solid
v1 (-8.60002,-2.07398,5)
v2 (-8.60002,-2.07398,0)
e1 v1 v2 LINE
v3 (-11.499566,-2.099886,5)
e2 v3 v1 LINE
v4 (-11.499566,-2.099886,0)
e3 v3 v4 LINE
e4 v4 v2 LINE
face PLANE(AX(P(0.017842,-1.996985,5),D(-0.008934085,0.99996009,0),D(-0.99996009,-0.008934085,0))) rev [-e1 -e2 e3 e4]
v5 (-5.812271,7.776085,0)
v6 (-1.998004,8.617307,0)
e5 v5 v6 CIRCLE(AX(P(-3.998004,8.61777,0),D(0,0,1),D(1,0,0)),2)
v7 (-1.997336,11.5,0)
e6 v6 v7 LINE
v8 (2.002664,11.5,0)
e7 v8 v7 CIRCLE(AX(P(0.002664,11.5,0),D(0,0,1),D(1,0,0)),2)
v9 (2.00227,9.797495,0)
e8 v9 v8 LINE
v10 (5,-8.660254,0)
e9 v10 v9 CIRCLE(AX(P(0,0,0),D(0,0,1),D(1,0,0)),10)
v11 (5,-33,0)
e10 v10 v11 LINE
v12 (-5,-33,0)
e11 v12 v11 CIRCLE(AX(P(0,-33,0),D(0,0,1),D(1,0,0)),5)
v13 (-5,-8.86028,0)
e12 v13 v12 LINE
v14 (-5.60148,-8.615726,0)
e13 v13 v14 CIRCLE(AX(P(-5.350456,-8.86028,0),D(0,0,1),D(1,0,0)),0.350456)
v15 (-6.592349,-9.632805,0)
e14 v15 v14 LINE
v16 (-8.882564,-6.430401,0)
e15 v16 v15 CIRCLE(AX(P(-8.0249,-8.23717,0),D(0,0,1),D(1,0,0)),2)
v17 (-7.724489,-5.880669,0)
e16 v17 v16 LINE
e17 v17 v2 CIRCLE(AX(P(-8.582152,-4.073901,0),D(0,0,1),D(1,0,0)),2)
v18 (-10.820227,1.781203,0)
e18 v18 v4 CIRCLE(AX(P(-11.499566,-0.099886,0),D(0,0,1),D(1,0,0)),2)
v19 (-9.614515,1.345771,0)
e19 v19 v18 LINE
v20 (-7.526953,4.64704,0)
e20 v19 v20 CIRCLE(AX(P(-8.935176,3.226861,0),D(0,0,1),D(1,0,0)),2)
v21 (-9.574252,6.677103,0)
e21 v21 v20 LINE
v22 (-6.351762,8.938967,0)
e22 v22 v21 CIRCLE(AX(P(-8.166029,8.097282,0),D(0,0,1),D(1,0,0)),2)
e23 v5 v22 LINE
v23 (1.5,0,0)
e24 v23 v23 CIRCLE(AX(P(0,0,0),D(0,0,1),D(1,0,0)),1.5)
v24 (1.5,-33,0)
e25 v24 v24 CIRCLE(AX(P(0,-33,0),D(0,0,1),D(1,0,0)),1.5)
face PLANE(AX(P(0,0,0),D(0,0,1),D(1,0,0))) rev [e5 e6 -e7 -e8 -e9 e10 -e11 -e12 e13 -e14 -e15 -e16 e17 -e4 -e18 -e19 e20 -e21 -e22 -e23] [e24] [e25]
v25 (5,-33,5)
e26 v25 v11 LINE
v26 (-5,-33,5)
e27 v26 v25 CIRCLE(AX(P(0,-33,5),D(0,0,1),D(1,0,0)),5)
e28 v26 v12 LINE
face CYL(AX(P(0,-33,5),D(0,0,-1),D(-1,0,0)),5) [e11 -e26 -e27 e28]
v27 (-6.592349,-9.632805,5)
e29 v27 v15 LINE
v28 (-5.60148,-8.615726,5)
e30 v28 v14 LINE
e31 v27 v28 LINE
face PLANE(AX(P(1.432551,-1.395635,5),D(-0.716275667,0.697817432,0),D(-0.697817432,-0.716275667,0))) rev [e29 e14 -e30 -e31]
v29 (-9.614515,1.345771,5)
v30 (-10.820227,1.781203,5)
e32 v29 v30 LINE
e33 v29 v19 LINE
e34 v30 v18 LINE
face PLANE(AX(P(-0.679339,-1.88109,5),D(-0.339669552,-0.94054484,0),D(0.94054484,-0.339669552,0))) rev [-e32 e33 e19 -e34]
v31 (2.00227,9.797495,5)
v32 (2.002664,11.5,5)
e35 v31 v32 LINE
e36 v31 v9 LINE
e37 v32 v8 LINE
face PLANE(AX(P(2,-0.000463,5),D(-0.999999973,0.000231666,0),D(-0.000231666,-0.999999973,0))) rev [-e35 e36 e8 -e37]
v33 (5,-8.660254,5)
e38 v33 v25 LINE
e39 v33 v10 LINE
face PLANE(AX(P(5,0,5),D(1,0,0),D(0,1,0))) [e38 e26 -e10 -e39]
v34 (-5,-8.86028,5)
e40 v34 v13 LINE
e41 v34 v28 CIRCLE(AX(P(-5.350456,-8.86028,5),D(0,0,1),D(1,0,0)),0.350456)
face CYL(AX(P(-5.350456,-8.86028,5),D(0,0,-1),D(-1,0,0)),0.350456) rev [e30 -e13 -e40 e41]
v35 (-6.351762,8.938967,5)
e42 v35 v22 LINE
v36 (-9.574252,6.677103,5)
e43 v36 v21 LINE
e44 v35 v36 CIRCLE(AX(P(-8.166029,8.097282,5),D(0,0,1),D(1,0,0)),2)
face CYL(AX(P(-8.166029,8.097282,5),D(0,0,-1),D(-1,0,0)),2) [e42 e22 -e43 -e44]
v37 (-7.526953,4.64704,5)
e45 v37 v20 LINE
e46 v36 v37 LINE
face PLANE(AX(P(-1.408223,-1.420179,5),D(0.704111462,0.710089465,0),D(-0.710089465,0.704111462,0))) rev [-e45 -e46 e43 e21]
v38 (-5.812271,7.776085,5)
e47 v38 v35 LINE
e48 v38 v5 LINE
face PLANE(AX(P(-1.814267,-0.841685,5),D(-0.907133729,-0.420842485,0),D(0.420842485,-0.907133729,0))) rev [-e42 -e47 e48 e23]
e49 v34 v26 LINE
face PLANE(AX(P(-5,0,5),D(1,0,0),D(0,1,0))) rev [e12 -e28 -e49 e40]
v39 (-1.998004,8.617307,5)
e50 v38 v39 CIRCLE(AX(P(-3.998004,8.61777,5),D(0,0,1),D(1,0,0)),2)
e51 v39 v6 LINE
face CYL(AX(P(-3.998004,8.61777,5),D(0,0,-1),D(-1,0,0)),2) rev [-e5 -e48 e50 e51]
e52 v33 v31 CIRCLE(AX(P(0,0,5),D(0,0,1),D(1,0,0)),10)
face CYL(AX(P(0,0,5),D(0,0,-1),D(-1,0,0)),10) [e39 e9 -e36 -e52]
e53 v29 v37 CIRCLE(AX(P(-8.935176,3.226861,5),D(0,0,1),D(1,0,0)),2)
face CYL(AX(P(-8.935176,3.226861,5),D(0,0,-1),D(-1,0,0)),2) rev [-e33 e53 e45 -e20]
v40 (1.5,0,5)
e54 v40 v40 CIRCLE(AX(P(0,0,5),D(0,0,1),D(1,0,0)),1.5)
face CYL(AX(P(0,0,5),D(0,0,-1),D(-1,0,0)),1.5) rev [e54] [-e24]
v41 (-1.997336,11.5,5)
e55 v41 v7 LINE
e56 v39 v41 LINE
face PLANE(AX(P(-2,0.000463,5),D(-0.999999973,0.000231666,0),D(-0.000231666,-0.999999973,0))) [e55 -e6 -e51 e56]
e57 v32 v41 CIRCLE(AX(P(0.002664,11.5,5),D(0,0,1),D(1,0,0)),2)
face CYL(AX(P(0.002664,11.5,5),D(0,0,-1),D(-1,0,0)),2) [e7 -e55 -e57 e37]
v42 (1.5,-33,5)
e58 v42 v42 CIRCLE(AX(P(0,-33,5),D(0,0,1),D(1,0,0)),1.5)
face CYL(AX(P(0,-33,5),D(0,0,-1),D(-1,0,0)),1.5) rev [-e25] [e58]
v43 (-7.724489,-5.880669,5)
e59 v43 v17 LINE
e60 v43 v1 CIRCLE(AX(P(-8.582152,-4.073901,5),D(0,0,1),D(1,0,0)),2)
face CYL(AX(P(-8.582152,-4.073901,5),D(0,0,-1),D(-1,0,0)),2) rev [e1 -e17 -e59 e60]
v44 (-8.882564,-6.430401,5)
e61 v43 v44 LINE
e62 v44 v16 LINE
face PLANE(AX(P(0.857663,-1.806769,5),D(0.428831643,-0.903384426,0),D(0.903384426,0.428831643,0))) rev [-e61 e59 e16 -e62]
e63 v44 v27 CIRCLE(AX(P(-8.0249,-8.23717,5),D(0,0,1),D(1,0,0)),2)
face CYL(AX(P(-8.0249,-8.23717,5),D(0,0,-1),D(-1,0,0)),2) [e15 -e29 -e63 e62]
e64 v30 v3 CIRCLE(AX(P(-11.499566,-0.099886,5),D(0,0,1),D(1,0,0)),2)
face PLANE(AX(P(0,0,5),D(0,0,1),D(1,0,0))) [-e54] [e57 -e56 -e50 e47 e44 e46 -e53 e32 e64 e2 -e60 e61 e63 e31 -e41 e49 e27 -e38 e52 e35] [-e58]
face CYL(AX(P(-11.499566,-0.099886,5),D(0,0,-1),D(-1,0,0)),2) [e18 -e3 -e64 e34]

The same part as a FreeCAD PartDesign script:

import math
import FreeCAD as App
import Part
import Sketcher

doc = App.newDocument("Part")
body = doc.addObject("PartDesign::Body", "Body")

# Sketch on XY plane
sketch1 = doc.addObject("Sketcher::SketchObject", "Sketch")
body.addObject(sketch1)
sketch1.AttachmentSupport = (doc.XY_Plane, [""])
sketch1.MapMode = "FlatFace"
sketch1.addGeometry([
    Part.LineSegment(App.Vector(5, -33, 0), App.Vector(5, -8.660254, 0)),  # 0
    Part.ArcOfCircle(Part.Circle(App.Vector(0, 0, 0), App.Vector(0, 0, 1), 10), math.radians(-60), math.radians(78.449768)),  # 1
    Part.LineSegment(App.Vector(2.00227, 9.797495, 0), App.Vector(2.002664, 11.499536, 0)),  # 2
    Part.LineSegment(App.Vector(2.002664, 11.499536, 0), App.Vector(2.002664, 11.5, 0)),  # 3
    Part.ArcOfCircle(Part.Circle(App.Vector(0.002664, 11.5, 0), App.Vector(0, 0, 1), 2), math.radians(0), math.radians(180)),  # 4
    Part.LineSegment(App.Vector(-1.997336, 11.5, 0), App.Vector(-1.998004, 8.617307, 0)),  # 5
    Part.ArcOfCircle(Part.Circle(App.Vector(-3.998004, 8.61777, 0), App.Vector(0, 0, 1), 2), math.radians(-155.112199), math.radians(-0.013273)),  # 6
    Part.LineSegment(App.Vector(-5.812271, 7.776085, 0), App.Vector(-6.351762, 8.938967, 0)),  # 7
    Part.ArcOfCircle(Part.Circle(App.Vector(-8.166029, 8.097282, 0), App.Vector(0, 0, 1), 2), math.radians(24.887801), math.radians(225.242195)),  # 8
    Part.LineSegment(App.Vector(-9.574252, 6.677103, 0), App.Vector(-7.526953, 4.64704, 0)),  # 9
    Part.ArcOfCircle(Part.Circle(App.Vector(-8.935176, 3.226861, 0), App.Vector(0, 0, 1), 2), math.radians(-109.856743), math.radians(45.242195)),  # 10
    Part.LineSegment(App.Vector(-9.614515, 1.345771, 0), App.Vector(-10.820227, 1.781203, 0)),  # 11
    Part.ArcOfCircle(Part.Circle(App.Vector(-11.499566, -0.099886, 0), App.Vector(0, 0, 1), 2), math.radians(70.143257), math.radians(270)),  # 12
    Part.LineSegment(App.Vector(-11.499566, -2.099886, 0), App.Vector(-11.463831, -2.099567, 0)),  # 13
    Part.LineSegment(App.Vector(-11.463831, -2.099567, 0), App.Vector(-8.60002, -2.07398, 0)),  # 14
    Part.ArcOfCircle(Part.Circle(App.Vector(-8.582152, -4.073901, 0), App.Vector(0, 0, 1), 2), math.radians(-64.606564), math.radians(90.511892)),  # 15
    Part.LineSegment(App.Vector(-7.724489, -5.880669, 0), App.Vector(-7.99366, -6.008444, 0)),  # 16
    Part.LineSegment(App.Vector(-7.99366, -6.008444, 0), App.Vector(-8.882564, -6.430401, 0)),  # 17
    Part.ArcOfCircle(Part.Circle(App.Vector(-8.0249, -8.23717, 0), App.Vector(0, 0, 1), 2), math.radians(115.393436), math.radians(315.747842)),  # 18
    Part.LineSegment(App.Vector(-6.592349, -9.632805, 0), App.Vector(-5.60148, -8.615726, 0)),  # 19
    Part.ArcOfCircle(Part.Circle(App.Vector(-5.350456, -8.86028, 0), App.Vector(0, 0, 1), 0.350456), math.radians(0), math.radians(135.747842)),  # 20
    Part.LineSegment(App.Vector(-5, -8.86028, 0), App.Vector(-5, -33, 0)),  # 21
    Part.ArcOfCircle(Part.Circle(App.Vector(0, -33, 0), App.Vector(0, 0, 1), 5), math.radians(180), math.radians(360)),  # 22
    Part.Circle(App.Vector(0, -33, 0), App.Vector(0, 0, 1), 1.5),  # 23
    Part.Circle(App.Vector(0, 0, 0), App.Vector(0, 0, 1), 1.5),  # 24
], False)
sketch1.addConstraint([
    Sketcher.Constraint("Coincident", 0, 2, 1, 1),
    Sketcher.Constraint("Coincident", 1, 2, 2, 1),
    Sketcher.Constraint("Coincident", 2, 2, 3, 1),
    Sketcher.Constraint("Coincident", 3, 2, 4, 1),
    Sketcher.Constraint("Coincident", 4, 2, 5, 1),
    Sketcher.Constraint("Coincident", 5, 2, 6, 2),
    Sketcher.Constraint("Coincident", 6, 1, 7, 1),
    Sketcher.Constraint("Coincident", 7, 2, 8, 1),
    Sketcher.Constraint("Coincident", 8, 2, 9, 1),
    Sketcher.Constraint("Coincident", 9, 2, 10, 2),
    Sketcher.Constraint("Coincident", 10, 1, 11, 1),
    Sketcher.Constraint("Coincident", 11, 2, 12, 1),
    Sketcher.Constraint("Coincident", 12, 2, 13, 1),
    Sketcher.Constraint("Coincident", 13, 2, 14, 1),
    Sketcher.Constraint("Coincident", 14, 2, 15, 2),
    Sketcher.Constraint("Coincident", 15, 1, 16, 1),
    Sketcher.Constraint("Coincident", 16, 2, 17, 1),
    Sketcher.Constraint("Coincident", 17, 2, 18, 1),
    Sketcher.Constraint("Coincident", 18, 2, 19, 1),
    Sketcher.Constraint("Coincident", 19, 2, 20, 2),
    Sketcher.Constraint("Coincident", 20, 1, 21, 1),
    Sketcher.Constraint("Coincident", 21, 2, 22, 1),
    Sketcher.Constraint("Coincident", 22, 2, 0, 1),
    Sketcher.Constraint("Vertical", 0),
    Sketcher.Constraint("Vertical", 3),
    Sketcher.Constraint("Vertical", 21),
    Sketcher.Constraint("Coincident", 1, 3, -1, 1),
    Sketcher.Constraint("Coincident", 24, 3, -1, 1),
    Sketcher.Constraint("Coincident", 23, 3, 22, 3),
    Sketcher.Constraint("PointOnObject", 22, 3, -2),
    Sketcher.Constraint("Diameter", 23, 3.0),
    Sketcher.Constraint("Diameter", 24, 3.0),
    Sketcher.Constraint("Radius", 1, 10.0),
    Sketcher.Constraint("Radius", 4, 2.0),
    Sketcher.Constraint("Radius", 6, 2.0),
    Sketcher.Constraint("Radius", 8, 2.0),
    Sketcher.Constraint("Radius", 10, 2.0),
    Sketcher.Constraint("Radius", 12, 2.0),
    Sketcher.Constraint("Radius", 15, 2.0),
    Sketcher.Constraint("Radius", 18, 2.0),
    Sketcher.Constraint("Radius", 22, 5.0),
    Sketcher.Constraint("DistanceY", 22, 3, -1, 1, 33.0),
    Sketcher.Constraint("DistanceY", 21, 2, -1, 1, 33.0),
    Sketcher.Constraint("DistanceY", 22, 2, -1, 1, 33.0),
    Sketcher.Constraint("DistanceY", -1, 1, 4, 3, 11.5),
    Sketcher.Constraint("DistanceY", -1, 1, 3, 2, 11.5),
    Sketcher.Constraint("DistanceY", -1, 1, 4, 2, 11.5),
    Sketcher.Constraint("Radius", 20, 0.350456),
    Sketcher.Constraint("DistanceY", 21, 2, 21, 1, 24.13972),
    Sketcher.Constraint("DistanceY", 15, 3, -1, 1, 4.073901),
    Sketcher.Constraint("DistanceX", 18, 3, -1, 1, 8.0249),
    Sketcher.Constraint("DistanceY", 17, 2, -1, 1, 6.430401),
    Sketcher.Constraint("DistanceX", 8, 3, 1, 2, 10.168299),
    Sketcher.Constraint("DistanceX", 8, 2, 9, 2, 2.047299),
    Sketcher.Constraint("DistanceY", 11, 2, 8, 2, 4.895899),
    Sketcher.Constraint("DistanceY", 18, 3, 15, 1, 2.356501),
    Sketcher.Constraint("Distance", 2, 1.702041),
    Sketcher.Constraint("Distance", 7, 1.28193),
    Sketcher.Constraint("Distance", 11, 1.281929),
    Sketcher.Constraint("Distance", 16, 0.297959),
    Sketcher.Constraint("Distance", 17, 0.98397),
    Sketcher.Constraint("DistanceY", 3, 1, 3, 2, 0.000463),
    Sketcher.Constraint("DistanceY", -1, 1, 6, 3, 8.61777),
    Sketcher.Constraint("DistanceY", -1, 1, 8, 3, 8.097282),
    Sketcher.Constraint("DistanceY", -1, 1, 10, 3, 3.226861),
    Sketcher.Constraint("DistanceY", 18, 3, -1, 1, 8.23717),
    Sketcher.Constraint("DistanceY", 20, 3, -1, 1, 8.86028),
    Sketcher.Constraint("DistanceX", 6, 1, -1, 1, 5.812271),
    Sketcher.Constraint("DistanceX", 7, 2, -1, 1, 6.351762),
    Sketcher.Constraint("DistanceX", 8, 2, -1, 1, 9.574252),
    Sketcher.Constraint("DistanceY", -1, 1, 9, 2, 4.64704),
    Sketcher.Constraint("DistanceY", -1, 1, 10, 1, 1.345771),
    Sketcher.Constraint("DistanceX", 13, 2, -1, 1, 11.463831),
    Sketcher.Constraint("DistanceX", 14, 2, -1, 1, 8.60002),
    Sketcher.Constraint("DistanceX", 16, 2, -1, 1, 7.99366),
    Sketcher.Constraint("DistanceX", 18, 2, -1, 1, 6.592349),
    Sketcher.Constraint("DistanceX", 19, 2, -1, 1, 5.60148),
    Sketcher.Constraint("DistanceX", 10, 3, 4, 3, 8.93784),
    Sketcher.Constraint("DistanceX", 12, 3, 10, 3, 2.56439),
    Sketcher.Constraint("DistanceY", 5, 2, 1, 2, 1.180188),
    Sketcher.Constraint("DistanceX", 12, 2, 10, 1, 1.885051),
    Sketcher.Constraint("DistanceY", 12, 2, 13, 2, 0.000319),
])
pad1 = doc.addObject("PartDesign::Pad", "Pad")
body.addObject(pad1)
pad1.Profile = sketch1
pad1.Length = 5

doc.recompute()
